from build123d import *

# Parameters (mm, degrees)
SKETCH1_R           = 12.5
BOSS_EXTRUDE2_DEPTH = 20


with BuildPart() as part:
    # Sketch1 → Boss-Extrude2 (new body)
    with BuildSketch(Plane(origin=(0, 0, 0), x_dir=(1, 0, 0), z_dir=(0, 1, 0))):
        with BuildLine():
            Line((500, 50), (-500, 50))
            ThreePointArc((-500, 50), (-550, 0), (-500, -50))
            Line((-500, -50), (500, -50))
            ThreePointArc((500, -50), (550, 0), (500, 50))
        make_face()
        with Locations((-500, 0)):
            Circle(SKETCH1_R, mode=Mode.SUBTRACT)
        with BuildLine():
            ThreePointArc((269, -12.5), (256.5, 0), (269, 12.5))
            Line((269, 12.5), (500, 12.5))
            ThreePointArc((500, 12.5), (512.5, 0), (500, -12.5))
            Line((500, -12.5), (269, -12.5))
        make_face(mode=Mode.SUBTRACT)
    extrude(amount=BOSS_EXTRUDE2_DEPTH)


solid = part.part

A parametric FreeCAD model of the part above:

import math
import FreeCAD as App
import Part
import Sketcher
Q = App.Units.Quantity

doc = App.newDocument("Part")
body = doc.addObject("PartDesign::Body", "Body")

# Sketch on XZ plane
sketch1 = body.newObject("Sketcher::SketchObject", "Sketch")
sketch1.AttachmentSupport = (doc.getObject("XZ_Plane"), [""])
sketch1.MapMode = "FlatFace"
sketch1.addGeometry([
    Part.LineSegment(App.Vector(500, -50, 0), App.Vector(-500, -50, 0)),  # 0
    Part.ArcOfCircle(Part.Circle(App.Vector(-500, 0, 0), App.Vector(0, 0, 1), 50), math.radians(90), math.radians(270)),  # 1
    Part.LineSegment(App.Vector(-500, 50, 0), App.Vector(500, 50, 0)),  # 2
    Part.ArcOfCircle(Part.Circle(App.Vector(500, 0, 0), App.Vector(0, 0, 1), 50), math.radians(-90), math.radians(90)),  # 3
    Part.Circle(App.Vector(-500, 0, 0), App.Vector(0, 0, 1), 12.5),  # 4
    Part.LineSegment(App.Vector(500, 12.5, 0), App.Vector(269, 12.5, 0)),  # 5
    Part.ArcOfCircle(Part.Circle(App.Vector(269, 0, 0), App.Vector(0, 0, 1), 12.5), math.radians(90), math.radians(270)),  # 6
    Part.LineSegment(App.Vector(269, -12.5, 0), App.Vector(500, -12.5, 0)),  # 7
    Part.ArcOfCircle(Part.Circle(App.Vector(500, 0, 0), App.Vector(0, 0, 1), 12.5), math.radians(-90), math.radians(90)),  # 8
], False)
sketch1.addConstraint([
    Sketcher.Constraint("Tangent", 0, 2, 1, 2),
    Sketcher.Constraint("Tangent", 1, 1, 2, 1),
    Sketcher.Constraint("Tangent", 2, 2, 3, 2),
    Sketcher.Constraint("Tangent", 3, 1, 0, 1),
    Sketcher.Constraint("Tangent", 5, 2, 6, 1),
    Sketcher.Constraint("Tangent", 6, 2, 7, 1),
    Sketcher.Constraint("Tangent", 7, 2, 8, 1),
    Sketcher.Constraint("Tangent", 8, 2, 5, 1),
    Sketcher.Constraint("Horizontal", 0),
    Sketcher.Constraint("Horizontal", 2),
    Sketcher.Constraint("Horizontal", 5),
    Sketcher.Constraint("Horizontal", 7),
    Sketcher.Constraint("Coincident", 4, 3, 1, 3),
    Sketcher.Constraint("Coincident", 8, 3, 3, 3),
    Sketcher.Constraint("Equal", 4, 6),
    Sketcher.Constraint("Symmetric", 1, 3, 3, 3, -1, 1),
    Sketcher.Constraint("Diameter", 4, Q("25 mm")),
    Sketcher.Constraint("Radius", 1, Q("50 mm")),
    Sketcher.Constraint("DistanceX", 0, 2, 0, 1, Q("1000 mm")),
    Sketcher.Constraint("DistanceX", 5, 2, 5, 1, Q("231 mm")),
])
pad1 = body.newObject("PartDesign::Pad", "Pad")
pad1.Profile = sketch1
pad1.Length = 20
pad1.Reversed = True

doc.recompute()
